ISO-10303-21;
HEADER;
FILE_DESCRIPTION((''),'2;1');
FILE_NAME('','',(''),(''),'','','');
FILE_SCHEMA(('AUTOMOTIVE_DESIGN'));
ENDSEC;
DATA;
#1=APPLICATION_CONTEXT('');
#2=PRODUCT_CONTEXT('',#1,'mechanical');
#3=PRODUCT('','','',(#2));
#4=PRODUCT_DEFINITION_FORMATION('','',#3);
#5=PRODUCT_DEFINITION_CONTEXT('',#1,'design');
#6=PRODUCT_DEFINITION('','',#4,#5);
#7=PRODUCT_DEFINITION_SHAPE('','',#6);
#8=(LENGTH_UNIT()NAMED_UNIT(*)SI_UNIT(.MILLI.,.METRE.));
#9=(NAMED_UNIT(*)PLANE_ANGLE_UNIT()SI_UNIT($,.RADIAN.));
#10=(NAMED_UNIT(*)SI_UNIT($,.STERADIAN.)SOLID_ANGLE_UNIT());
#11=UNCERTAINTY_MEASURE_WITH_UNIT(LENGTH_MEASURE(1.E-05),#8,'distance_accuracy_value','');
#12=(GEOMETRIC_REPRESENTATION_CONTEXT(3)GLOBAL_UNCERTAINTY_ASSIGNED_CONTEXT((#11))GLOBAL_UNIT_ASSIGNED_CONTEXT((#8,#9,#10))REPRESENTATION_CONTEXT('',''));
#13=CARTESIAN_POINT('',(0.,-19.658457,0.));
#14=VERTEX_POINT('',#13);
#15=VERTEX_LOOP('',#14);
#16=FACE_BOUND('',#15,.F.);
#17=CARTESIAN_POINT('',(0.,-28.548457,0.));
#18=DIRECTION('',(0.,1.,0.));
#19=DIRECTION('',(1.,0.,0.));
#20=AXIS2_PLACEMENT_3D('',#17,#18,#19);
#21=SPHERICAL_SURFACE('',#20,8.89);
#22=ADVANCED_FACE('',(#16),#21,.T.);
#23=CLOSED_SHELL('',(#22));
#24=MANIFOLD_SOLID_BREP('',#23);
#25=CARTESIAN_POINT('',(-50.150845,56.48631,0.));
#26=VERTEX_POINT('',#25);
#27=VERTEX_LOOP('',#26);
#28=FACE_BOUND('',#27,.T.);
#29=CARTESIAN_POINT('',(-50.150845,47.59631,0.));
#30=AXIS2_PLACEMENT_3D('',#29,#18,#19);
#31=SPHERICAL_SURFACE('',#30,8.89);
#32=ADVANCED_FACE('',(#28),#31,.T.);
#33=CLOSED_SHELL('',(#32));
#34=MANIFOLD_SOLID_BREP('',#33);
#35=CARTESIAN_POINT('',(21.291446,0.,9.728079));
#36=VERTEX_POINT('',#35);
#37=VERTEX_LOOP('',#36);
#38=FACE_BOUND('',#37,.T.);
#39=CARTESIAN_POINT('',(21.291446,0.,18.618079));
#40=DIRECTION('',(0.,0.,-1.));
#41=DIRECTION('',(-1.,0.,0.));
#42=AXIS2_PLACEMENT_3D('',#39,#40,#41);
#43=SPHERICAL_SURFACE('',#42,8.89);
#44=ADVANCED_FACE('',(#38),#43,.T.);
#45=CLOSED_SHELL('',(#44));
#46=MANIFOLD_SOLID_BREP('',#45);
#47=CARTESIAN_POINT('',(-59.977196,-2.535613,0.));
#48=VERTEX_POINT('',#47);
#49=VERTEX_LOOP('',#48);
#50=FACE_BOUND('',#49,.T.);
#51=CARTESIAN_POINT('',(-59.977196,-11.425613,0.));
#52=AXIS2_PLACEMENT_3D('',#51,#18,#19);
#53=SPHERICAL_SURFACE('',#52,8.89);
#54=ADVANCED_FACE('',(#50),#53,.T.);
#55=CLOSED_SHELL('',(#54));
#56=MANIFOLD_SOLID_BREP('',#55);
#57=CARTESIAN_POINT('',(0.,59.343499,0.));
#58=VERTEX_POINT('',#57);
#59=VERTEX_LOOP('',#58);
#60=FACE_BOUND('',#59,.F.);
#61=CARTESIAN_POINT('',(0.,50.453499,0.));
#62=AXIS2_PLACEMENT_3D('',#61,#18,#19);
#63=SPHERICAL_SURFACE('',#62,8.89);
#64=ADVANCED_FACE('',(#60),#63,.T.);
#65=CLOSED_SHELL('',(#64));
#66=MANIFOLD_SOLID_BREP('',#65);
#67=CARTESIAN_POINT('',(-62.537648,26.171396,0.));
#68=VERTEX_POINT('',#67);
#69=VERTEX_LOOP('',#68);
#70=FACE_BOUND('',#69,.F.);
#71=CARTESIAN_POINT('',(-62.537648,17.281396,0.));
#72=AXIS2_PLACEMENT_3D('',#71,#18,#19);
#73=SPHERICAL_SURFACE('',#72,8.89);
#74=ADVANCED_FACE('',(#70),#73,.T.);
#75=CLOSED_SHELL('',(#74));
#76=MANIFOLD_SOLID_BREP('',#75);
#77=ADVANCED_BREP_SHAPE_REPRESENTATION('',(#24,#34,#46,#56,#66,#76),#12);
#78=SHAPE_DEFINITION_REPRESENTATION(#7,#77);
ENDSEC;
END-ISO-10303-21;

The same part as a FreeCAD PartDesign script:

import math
import FreeCAD as App
import Part
import Sketcher
from FreeCAD import Vector
Q = App.Units.Quantity

doc = App.newDocument("Part")
body = doc.addObject("PartDesign::Body", "Body")

# Sketch on XZ plane
sketch1 = doc.addObject("Sketcher::SketchObject", "Sketch")
body.addObject(sketch1)
sketch1.AttachmentSupport = (doc.XZ_Plane, [""])
sketch1.MapMode = "FlatFace"
sketch1.addGeometry(Part.ArcOfCircle(Part.Circle(Vector(21, 19, 0), Vector(0, 0, 1), 9), math.radians(90), math.radians(270)), False)
sketch1.addGeometry(Part.LineSegment(Vector(21, 10, 0), Vector(21, 28, 0)), False)
sketch1.addGeometry(Part.LineSegment(Vector(21, 28, 0), Vector(21, 10, 0)), True)  # axis
sketch1.addConstraint(Sketcher.Constraint("Coincident", 0, 1, 1, 2))
sketch1.addConstraint(Sketcher.Constraint("Coincident", 1, 1, 0, 2))
sketch1.addConstraint(Sketcher.Constraint("Vertical", 1))
sketch1.addConstraint(Sketcher.Constraint("Vertical", 2))
sketch1.addConstraint(Sketcher.Constraint("Coincident", 2, 1, 0, 1))
sketch1.addConstraint(Sketcher.Constraint("Equal", 1, 2))
sketch1.addConstraint(Sketcher.Constraint("Radius", 0, Q("0.35 in")))
sketch1.addConstraint(Sketcher.Constraint("DistanceY", -1, 1, 0, 3, Q("18.618079 mm")))
sketch1.addConstraint(Sketcher.Constraint("DistanceX", -1, 1, 0, 3, Q("21.291446 mm")))
sketch1.addConstraint(Sketcher.Constraint("DistanceX", -1, 1, 0, 1, Q("21.291446 mm")))
revolution = doc.addObject("PartDesign::Revolution", "Revolution")
body.addObject(revolution)
revolution.Profile = sketch1
revolution.ReferenceAxis = (sketch1, ["Axis0"])
revolution.Angle = 360
body2 = doc.addObject("PartDesign::Body", "Body001")

# Sketch on XY plane
sketch2 = doc.addObject("Sketcher::SketchObject", "Sketch001")
body2.addObject(sketch2)
sketch2.AttachmentSupport = (doc.getObject("XY_Plane001"), [""])
sketch2.MapMode = "FlatFace"
sketch2.addGeometry(Part.ArcOfCircle(Part.Circle(Vector(-50, 48, 0), Vector(0, 0, 1), 9), math.radians(-90), math.radians(90)), False)
sketch2.addGeometry(Part.LineSegment(Vector(-50, 56, 0), Vector(-50, 39, 0)), False)
sketch2.addGeometry(Part.LineSegment(Vector(-50, 39, 0), Vector(-50, 56, 0)), True)  # axis
sketch2.addConstraint(Sketcher.Constraint("Coincident", 0, 1, 1, 2))
sketch2.addConstraint(Sketcher.Constraint("Coincident", 1, 1, 0, 2))
sketch2.addConstraint(Sketcher.Constraint("Vertical", 1))
sketch2.addConstraint(Sketcher.Constraint("Vertical", 2))
sketch2.addConstraint(Sketcher.Constraint("Coincident", 2, 1, 0, 1))
sketch2.addConstraint(Sketcher.Constraint("Equal", 1, 2))
sketch2.addConstraint(Sketcher.Constraint("Radius", 0, Q("0.35 in")))
sketch2.addConstraint(Sketcher.Constraint("DistanceY", -1, 1, 0, 3, Q("47.59631 mm")))
sketch2.addConstraint(Sketcher.Constraint("DistanceX", 0, 3, -1, 1, Q("50.150845 mm")))
sketch2.addConstraint(Sketcher.Constraint("DistanceX", 0, 1, -1, 1, Q("50.150845 mm")))
revolution2 = doc.addObject("PartDesign::Revolution", "Revolution001")
body2.addObject(revolution2)
revolution2.Profile = sketch2
revolution2.ReferenceAxis = (sketch2, ["Axis0"])
revolution2.Angle = 360
body3 = doc.addObject("PartDesign::Body", "Body002")

# Sketch on XY plane
sketch3 = doc.addObject("Sketcher::SketchObject", "Sketch002")
body3.addObject(sketch3)
sketch3.AttachmentSupport = (doc.getObject("XY_Plane002"), [""])
sketch3.MapMode = "FlatFace"
sketch3.addGeometry(Part.ArcOfCircle(Part.Circle(Vector(-63, 17, 0), Vector(0, 0, 1), 9), math.radians(-90), math.radians(90)), False)
sketch3.addGeometry(Part.LineSegment(Vector(-63, 26, 0), Vector(-63, 8, 0)), False)
sketch3.addGeometry(Part.LineSegment(Vector(-63, 26, 0), Vector(-63, 8, 0)), True)  # axis
sketch3.addConstraint(Sketcher.Constraint("Coincident", 0, 1, 1, 2))
sketch3.addConstraint(Sketcher.Constraint("Coincident", 1, 1, 0, 2))
sketch3.addConstraint(Sketcher.Constraint("Vertical", 1))
sketch3.addConstraint(Sketcher.Constraint("Vertical", 2))
sketch3.addConstraint(Sketcher.Constraint("Coincident", 2, 1, 1, 1))
sketch3.addConstraint(Sketcher.Constraint("Equal", 1, 2))
sketch3.addConstraint(Sketcher.Constraint("Radius", 0, Q("0.35 in")))
sketch3.addConstraint(Sketcher.Constraint("DistanceX", 0, 3, -1, 1, Q("62.537648 mm")))
sketch3.addConstraint(Sketcher.Constraint("DistanceY", -1, 1, 0, 3, Q("17.281396 mm")))
sketch3.addConstraint(Sketcher.Constraint("DistanceX", 0, 1, -1, 1, Q("62.537648 mm")))
revolution3 = doc.addObject("PartDesign::Revolution", "Revolution002")
body3.addObject(revolution3)
revolution3.Profile = sketch3
revolution3.ReferenceAxis = (sketch3, ["Axis0"])
revolution3.Angle = 360
body4 = doc.addObject("PartDesign::Body", "Body003")

# Sketch on XY plane
sketch4 = doc.addObject("Sketcher::SketchObject", "Sketch003")
body4.addObject(sketch4)
sketch4.AttachmentSupport = (doc.getObject("XY_Plane003"), [""])
sketch4.MapMode = "FlatFace"
sketch4.addGeometry(Part.ArcOfCircle(Part.Circle(Vector(-60, -11, 0), Vector(0, 0, 1), 9), math.radians(-90), math.radians(90)), False)
sketch4.addGeometry(Part.LineSegment(Vector(-60, -3, 0), Vector(-60, -20, 0)), False)
sketch4.addGeometry(Part.LineSegment(Vector(-60, -20, 0), Vector(-60, -3, 0)), True)  # axis
sketch4.addConstraint(Sketcher.Constraint("Coincident", 0, 1, 1, 2))
sketch4.addConstraint(Sketcher.Constraint("Coincident", 1, 1, 0, 2))
sketch4.addConstraint(Sketcher.Constraint("Vertical", 1))
sketch4.addConstraint(Sketcher.Constraint("Vertical", 2))
sketch4.addConstraint(Sketcher.Constraint("Coincident", 2, 1, 0, 1))
sketch4.addConstraint(Sketcher.Constraint("Equal", 1, 2))
sketch4.addConstraint(Sketcher.Constraint("Radius", 0, Q("0.35 in")))
sketch4.addConstraint(Sketcher.Constraint("DistanceX", 0, 3, -1, 1, Q("59.977196 mm")))
sketch4.addConstraint(Sketcher.Constraint("DistanceY", 0, 3, -1, 1, Q("11.425613 mm")))
sketch4.addConstraint(Sketcher.Constraint("DistanceX", 0, 1, -1, 1, Q("59.977196 mm")))
revolution4 = doc.addObject("PartDesign::Revolution", "Revolution003")
body4.addObject(revolution4)
revolution4.Profile = sketch4
revolution4.ReferenceAxis = (sketch4, ["Axis0"])
revolution4.Angle = 360
body5 = doc.addObject("PartDesign::Body", "Body004")

# Sketch on XY plane
sketch5 = doc.addObject("Sketcher::SketchObject", "Sketch004")
body5.addObject(sketch5)
sketch5.AttachmentSupport = (doc.getObject("XY_Plane004"), [""])
sketch5.MapMode = "FlatFace"
sketch5.addGeometry(Part.LineSegment(Vector(0, 59, 0), Vector(0, 42, 0)), False)
sketch5.addGeometry(Part.ArcOfCircle(Part.Circle(Vector(0, 50, 0), Vector(0, 0, 1), 9), math.radians(-90), math.radians(90)), False)
sketch5.addConstraint(Sketcher.Constraint("Coincident", 0, 1, 1, 2))
sketch5.addConstraint(Sketcher.Constraint("Coincident", 1, 1, 0, 2))
sketch5.addConstraint(Sketcher.Constraint("Vertical", 0))
sketch5.addConstraint(Sketcher.Constraint("PointOnObject", 1, 3, -2))
sketch5.addConstraint(Sketcher.Constraint("PointOnObject", 0, 1, -2))
sketch5.addConstraint(Sketcher.Constraint("Radius", 1, Q("0.35 in")))
sketch5.addConstraint(Sketcher.Constraint("DistanceY", -1, 1, 1, 3, Q("50.453499 mm")))
revolution5 = doc.addObject("PartDesign::Revolution", "Revolution004")
body5.addObject(revolution5)
revolution5.Profile = sketch5
revolution5.ReferenceAxis = (sketch5, ["V_Axis"])
revolution5.Angle = 360
body6 = doc.addObject("PartDesign::Body", "Body005")

# Sketch on XY plane
sketch6 = doc.addObject("Sketcher::SketchObject", "Sketch005")
body6.addObject(sketch6)
sketch6.AttachmentSupport = (doc.getObject("XY_Plane005"), [""])
sketch6.MapMode = "FlatFace"
sketch6.addGeometry(Part.LineSegment(Vector(0, -20, 0), Vector(0, -37, 0)), False)
sketch6.addGeometry(Part.ArcOfCircle(Part.Circle(Vector(0, -29, 0), Vector(0, 0, 1), 9), math.radians(-90), math.radians(90)), False)
sketch6.addConstraint(Sketcher.Constraint("Coincident", 0, 1, 1, 2))
sketch6.addConstraint(Sketcher.Constraint("Coincident", 1, 1, 0, 2))
sketch6.addConstraint(Sketcher.Constraint("Vertical", 0))
sketch6.addConstraint(Sketcher.Constraint("PointOnObject", 1, 3, -2))
sketch6.addConstraint(Sketcher.Constraint("PointOnObject", 0, 1, -2))
sketch6.addConstraint(Sketcher.Constraint("Radius", 1, Q("0.35 in")))
sketch6.addConstraint(Sketcher.Constraint("DistanceY", 1, 3, -1, 1, Q("28.548457 mm")))
revolution6 = doc.addObject("PartDesign::Revolution", "Revolution005")
body6.addObject(revolution6)
revolution6.Profile = sketch6
revolution6.ReferenceAxis = (sketch6, ["V_Axis"])
revolution6.Angle = 360

doc.recompute()
